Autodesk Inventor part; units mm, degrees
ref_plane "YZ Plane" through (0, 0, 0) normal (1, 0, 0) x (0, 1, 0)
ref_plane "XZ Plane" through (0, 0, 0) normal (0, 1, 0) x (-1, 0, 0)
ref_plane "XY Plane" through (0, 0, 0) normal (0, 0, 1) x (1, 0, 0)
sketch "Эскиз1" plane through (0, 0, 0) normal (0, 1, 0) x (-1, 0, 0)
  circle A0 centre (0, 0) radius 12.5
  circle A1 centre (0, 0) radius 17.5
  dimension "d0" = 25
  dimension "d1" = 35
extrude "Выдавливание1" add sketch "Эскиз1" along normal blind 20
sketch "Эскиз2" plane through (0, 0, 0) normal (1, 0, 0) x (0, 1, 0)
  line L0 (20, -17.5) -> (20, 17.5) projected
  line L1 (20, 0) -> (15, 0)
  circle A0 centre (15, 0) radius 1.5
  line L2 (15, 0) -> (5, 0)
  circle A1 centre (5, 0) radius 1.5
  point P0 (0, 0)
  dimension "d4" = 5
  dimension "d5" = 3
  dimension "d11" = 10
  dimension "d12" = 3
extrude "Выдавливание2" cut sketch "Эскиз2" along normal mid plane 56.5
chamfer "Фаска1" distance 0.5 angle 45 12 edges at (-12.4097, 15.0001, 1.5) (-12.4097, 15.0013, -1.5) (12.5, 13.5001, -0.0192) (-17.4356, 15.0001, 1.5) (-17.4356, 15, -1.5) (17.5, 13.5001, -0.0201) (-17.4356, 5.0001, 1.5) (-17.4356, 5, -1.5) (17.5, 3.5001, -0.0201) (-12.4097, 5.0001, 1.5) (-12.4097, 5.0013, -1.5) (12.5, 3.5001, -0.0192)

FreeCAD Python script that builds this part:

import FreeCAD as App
import Part
import Sketcher

V = App.Vector
Q = App.Units.Quantity


def edges_at(feature, points):
    """Names of the edges that pass closest to the given points."""
    edges = feature.Shape.Edges
    near = lambda p: min(range(len(edges)), key=lambda i: edges[i].distToShape(Part.Vertex(*p))[0])
    return sorted({f"Edge{near(p) + 1}" for p in points})

doc = App.newDocument("Part")
body = doc.addObject("PartDesign::Body", "Body")

sketch1 = body.newObject("Sketcher::SketchObject", "Sketch")
sketch1.AttachmentSupport = (doc.getObject("XZ_Plane"), [""])
sketch1.MapMode = "FlatFace"
sketch1.addGeometry(Part.Circle(V(0, 0, 0), V(0, 0, 1), 17.5), False)
sketch1.addGeometry(Part.Circle(V(0, 0, 0), V(0, 0, 1), 12.5), False)
sketch1.addConstraint(Sketcher.Constraint("Coincident", 0, 3, -1, 1))
sketch1.addConstraint(Sketcher.Constraint("Coincident", 1, 3, -1, 1))
sketch1.addConstraint(Sketcher.Constraint("Diameter", 0, Q("35 mm")))
sketch1.addConstraint(Sketcher.Constraint("Diameter", 1, Q("25 mm")))
pad1 = body.newObject("PartDesign::Pad", "Pad")
pad1.Profile = sketch1
pad1.Length = 20
pad1.Reversed = True

sketch2 = body.newObject("Sketcher::SketchObject", "Sketch001")
sketch2.AttachmentSupport = (doc.getObject("YZ_Plane"), [""])
sketch2.MapMode = "FlatFace"
sketch2.addGeometry(Part.Circle(V(15, 0, 0), V(0, 0, 1), 1.5), False)
sketch2.addGeometry(Part.Circle(V(5, 0, 0), V(0, 0, 1), 1.5), False)
sketch2.addConstraint(Sketcher.Constraint("Equal", 0, 1))
sketch2.addConstraint(Sketcher.Constraint("PointOnObject", 0, 3, -1))
sketch2.addConstraint(Sketcher.Constraint("PointOnObject", 1, 3, -1))
sketch2.addConstraint(Sketcher.Constraint("Diameter", 0, Q("3 mm")))
sketch2.addConstraint(Sketcher.Constraint("DistanceX", -1, 1, 1, 3, Q("5 mm")))
sketch2.addConstraint(Sketcher.Constraint("DistanceX", 1, 3, 0, 3, Q("10 mm")))
pocket1 = body.newObject("PartDesign::Pocket", "Pocket")
pocket1.Profile = sketch2
pocket1.Length = 56.5
pocket1.Midplane = True
doc.recompute()

chamfer = body.newObject("PartDesign::Chamfer", "Chamfer")
chamfer.Base = (pocket1, edges_at(pocket1, [
    (-12.41, 15, 1.5),
    (-12.41, 15.001, -1.5),
    (12.5, 13.5, -0.019),
    (-17.436, 15, 1.5),
    (-17.436, 15, -1.5),
    (17.5, 13.5, -0.02),
    (-17.436, 5, 1.5),
    (-17.436, 5, -1.5),
    (17.5, 3.5, -0.02),
    (-12.41, 5, 1.5),
    (-12.41, 5.001, -1.5),
    (12.5, 3.5, -0.019),
]))
chamfer.Size = 0.5

doc.recompute()
